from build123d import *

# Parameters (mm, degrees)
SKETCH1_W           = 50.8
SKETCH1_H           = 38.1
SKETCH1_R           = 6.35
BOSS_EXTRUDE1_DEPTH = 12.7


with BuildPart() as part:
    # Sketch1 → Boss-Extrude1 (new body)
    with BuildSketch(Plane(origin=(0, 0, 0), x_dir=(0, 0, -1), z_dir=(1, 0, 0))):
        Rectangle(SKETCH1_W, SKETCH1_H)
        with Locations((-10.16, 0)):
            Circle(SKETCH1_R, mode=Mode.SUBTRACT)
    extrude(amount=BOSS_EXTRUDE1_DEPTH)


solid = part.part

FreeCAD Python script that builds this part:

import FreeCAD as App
import Part
import Sketcher

V = App.Vector
Q = App.Units.Quantity


def add_polygon(sketch, points):
    """Adds a closed chain of lines whose ends are joined by coincident constraints."""
    first, n = sketch.GeometryCount, len(points)
    for a, b in zip(points, points[1:] + points[:1]):
        sketch.addGeometry(Part.LineSegment(App.Vector(*a, 0), App.Vector(*b, 0)), False)
    for i in range(n):
        sketch.addConstraint(Sketcher.Constraint("Coincident", first + i, 2, first + (i + 1) % n, 1))

doc = App.newDocument("Part")
body = doc.addObject("PartDesign::Body", "Body")

sketch1 = doc.addObject("Sketcher::SketchObject", "Sketch")
body.addObject(sketch1)
sketch1.AttachmentSupport = (doc.YZ_Plane, [""])
sketch1.MapMode = "FlatFace"
add_polygon(sketch1, [(19.05, 25.4), (-19.05, 25.4), (-19.05, -25.4), (19.05, -25.4)])
sketch1.addGeometry(Part.Circle(V(0, 10.16, 0), V(0, 0, 1), 6.35), False)
sketch1.addConstraint([
    Sketcher.Constraint("Horizontal", 0),
    Sketcher.Constraint("Vertical", 1),
    Sketcher.Constraint("Horizontal", 2),
    Sketcher.Constraint("Vertical", 3),
    Sketcher.Constraint("Symmetric", 0, 2, 2, 2, -1, 1),
    Sketcher.Constraint("PointOnObject", 4, 3, -2),
    Sketcher.Constraint("Diameter", 4, Q("0.5 in")),
    Sketcher.Constraint("DistanceY", 1, 2, 1, 1, Q("2 in")),
    Sketcher.Constraint("DistanceX", 0, 2, 0, 1, Q("1.5 in")),
    Sketcher.Constraint("DistanceY", -1, 1, 4, 3, Q("0.4 in")),
])
pad1 = doc.addObject("PartDesign::Pad", "Pad")
body.addObject(pad1)
pad1.Profile = sketch1
pad1.Length = Q("0.5 in")

doc.recompute()
